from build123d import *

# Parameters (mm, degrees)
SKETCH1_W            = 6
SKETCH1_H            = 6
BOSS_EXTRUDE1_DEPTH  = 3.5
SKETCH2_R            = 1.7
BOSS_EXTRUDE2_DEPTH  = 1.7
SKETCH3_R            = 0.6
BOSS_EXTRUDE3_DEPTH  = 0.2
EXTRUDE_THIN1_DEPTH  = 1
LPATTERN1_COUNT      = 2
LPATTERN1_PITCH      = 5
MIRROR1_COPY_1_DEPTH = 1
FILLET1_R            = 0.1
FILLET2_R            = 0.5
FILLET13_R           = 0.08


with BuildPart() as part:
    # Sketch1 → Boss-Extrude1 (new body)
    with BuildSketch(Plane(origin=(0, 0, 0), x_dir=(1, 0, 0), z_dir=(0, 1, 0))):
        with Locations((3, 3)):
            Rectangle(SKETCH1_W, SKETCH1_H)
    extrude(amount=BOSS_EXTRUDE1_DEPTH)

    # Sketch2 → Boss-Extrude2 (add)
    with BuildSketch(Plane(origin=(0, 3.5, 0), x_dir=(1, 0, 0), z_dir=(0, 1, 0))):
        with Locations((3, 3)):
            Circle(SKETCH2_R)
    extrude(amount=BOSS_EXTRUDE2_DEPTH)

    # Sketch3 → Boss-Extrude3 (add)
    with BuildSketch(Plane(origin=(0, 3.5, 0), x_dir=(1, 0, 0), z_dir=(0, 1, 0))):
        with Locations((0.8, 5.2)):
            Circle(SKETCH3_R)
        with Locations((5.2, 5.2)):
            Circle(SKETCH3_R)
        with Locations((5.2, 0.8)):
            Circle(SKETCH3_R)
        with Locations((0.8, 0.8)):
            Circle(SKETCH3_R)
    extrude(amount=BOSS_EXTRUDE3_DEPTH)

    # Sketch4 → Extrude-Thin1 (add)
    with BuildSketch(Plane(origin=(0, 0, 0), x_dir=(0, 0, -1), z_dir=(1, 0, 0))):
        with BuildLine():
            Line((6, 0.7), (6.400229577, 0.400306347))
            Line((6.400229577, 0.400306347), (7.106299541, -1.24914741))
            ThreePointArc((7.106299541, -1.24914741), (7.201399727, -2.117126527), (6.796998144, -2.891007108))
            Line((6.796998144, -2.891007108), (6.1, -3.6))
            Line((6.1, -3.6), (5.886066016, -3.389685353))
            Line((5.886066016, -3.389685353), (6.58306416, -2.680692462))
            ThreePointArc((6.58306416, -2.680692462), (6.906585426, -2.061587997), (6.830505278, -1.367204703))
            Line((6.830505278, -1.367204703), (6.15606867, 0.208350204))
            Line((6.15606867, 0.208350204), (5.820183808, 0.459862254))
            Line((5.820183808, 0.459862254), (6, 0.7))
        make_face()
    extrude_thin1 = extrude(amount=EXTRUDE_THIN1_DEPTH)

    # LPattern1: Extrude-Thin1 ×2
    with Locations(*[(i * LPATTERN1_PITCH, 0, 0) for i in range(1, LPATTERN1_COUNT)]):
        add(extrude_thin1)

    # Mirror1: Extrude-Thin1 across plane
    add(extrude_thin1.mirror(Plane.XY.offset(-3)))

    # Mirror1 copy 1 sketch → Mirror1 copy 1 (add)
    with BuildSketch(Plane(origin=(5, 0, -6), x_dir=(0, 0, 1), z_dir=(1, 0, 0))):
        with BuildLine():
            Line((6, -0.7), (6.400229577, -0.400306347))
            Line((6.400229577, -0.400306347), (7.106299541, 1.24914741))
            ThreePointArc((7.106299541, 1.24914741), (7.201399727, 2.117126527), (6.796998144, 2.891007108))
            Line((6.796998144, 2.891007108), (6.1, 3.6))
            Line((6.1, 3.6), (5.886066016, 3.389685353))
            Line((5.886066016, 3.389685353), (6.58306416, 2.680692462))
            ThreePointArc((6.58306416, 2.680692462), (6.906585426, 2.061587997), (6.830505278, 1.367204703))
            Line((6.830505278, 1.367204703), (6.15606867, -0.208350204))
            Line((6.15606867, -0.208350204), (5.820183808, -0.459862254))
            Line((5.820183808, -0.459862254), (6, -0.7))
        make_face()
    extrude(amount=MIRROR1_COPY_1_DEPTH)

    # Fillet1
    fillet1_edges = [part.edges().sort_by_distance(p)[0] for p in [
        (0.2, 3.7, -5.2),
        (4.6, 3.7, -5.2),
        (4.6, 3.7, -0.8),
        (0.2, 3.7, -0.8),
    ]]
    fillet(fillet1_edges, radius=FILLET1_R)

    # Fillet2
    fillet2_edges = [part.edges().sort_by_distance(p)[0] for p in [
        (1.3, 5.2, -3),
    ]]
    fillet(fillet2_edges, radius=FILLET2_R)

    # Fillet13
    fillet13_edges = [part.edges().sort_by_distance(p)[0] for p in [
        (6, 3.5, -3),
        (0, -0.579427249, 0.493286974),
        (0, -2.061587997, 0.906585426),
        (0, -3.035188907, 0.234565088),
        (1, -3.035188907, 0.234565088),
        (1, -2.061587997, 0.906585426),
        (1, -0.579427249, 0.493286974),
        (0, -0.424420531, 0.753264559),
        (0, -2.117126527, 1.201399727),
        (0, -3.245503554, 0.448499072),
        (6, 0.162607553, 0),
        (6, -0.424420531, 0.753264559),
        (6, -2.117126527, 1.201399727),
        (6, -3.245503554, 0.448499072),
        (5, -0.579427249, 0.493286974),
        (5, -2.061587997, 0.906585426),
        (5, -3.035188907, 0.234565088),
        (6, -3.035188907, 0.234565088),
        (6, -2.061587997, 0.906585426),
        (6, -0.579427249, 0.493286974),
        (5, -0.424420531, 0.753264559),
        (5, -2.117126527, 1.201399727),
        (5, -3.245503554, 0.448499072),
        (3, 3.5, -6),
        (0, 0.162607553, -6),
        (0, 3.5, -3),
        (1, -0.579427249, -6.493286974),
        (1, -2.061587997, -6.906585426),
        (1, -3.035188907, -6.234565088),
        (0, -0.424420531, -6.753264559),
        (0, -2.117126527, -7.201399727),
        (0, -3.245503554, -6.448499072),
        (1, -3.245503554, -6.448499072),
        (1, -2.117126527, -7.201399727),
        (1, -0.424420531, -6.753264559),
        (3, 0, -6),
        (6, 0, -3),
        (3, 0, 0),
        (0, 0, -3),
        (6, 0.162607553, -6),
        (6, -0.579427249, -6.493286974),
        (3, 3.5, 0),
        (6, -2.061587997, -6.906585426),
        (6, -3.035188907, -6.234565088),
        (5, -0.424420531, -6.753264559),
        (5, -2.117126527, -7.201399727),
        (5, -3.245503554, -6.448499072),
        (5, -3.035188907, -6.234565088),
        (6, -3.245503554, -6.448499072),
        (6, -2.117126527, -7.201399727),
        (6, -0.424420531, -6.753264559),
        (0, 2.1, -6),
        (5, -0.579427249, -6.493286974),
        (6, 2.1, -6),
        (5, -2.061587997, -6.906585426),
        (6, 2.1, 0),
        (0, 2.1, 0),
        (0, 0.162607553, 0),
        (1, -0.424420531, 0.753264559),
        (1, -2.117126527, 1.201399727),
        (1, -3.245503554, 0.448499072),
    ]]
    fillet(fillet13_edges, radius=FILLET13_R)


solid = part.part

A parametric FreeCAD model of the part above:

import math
import FreeCAD as App
import Part
import Sketcher
from FreeCAD import Vector


def edges_at(feature, points):
    """Names of the edges that pass closest to the given points."""
    edges = feature.Shape.Edges
    near = lambda p: min(range(len(edges)), key=lambda i: edges[i].distToShape(Part.Vertex(*p))[0])
    return sorted({f"Edge{near(p) + 1}" for p in points})

doc = App.newDocument("Part")
body = doc.addObject("PartDesign::Body", "Body")

# Sketch on XZ plane
sketch1 = body.newObject("Sketcher::SketchObject", "Sketch")
sketch1.AttachmentSupport = (doc.getObject("XZ_Plane"), [""])
sketch1.MapMode = "FlatFace"
sketch1.addGeometry([
    Part.LineSegment(Vector(0, -6, 0), Vector(0, 0, 0)),
    Part.LineSegment(Vector(0, 0, 0), Vector(6, 0, 0)),
    Part.LineSegment(Vector(6, 0, 0), Vector(6, -6, 0)),
    Part.LineSegment(Vector(6, -6, 0), Vector(0, -6, 0)),
], False)
sketch1.addConstraint([
    Sketcher.Constraint("Coincident", 0, 2, 1, 1),
    Sketcher.Constraint("Coincident", 1, 2, 2, 1),
    Sketcher.Constraint("Coincident", 2, 2, 3, 1),
    Sketcher.Constraint("Coincident", 3, 2, 0, 1),
    Sketcher.Constraint("Vertical", 0),
    Sketcher.Constraint("Horizontal", 1),
    Sketcher.Constraint("Vertical", 2),
    Sketcher.Constraint("Horizontal", 3),
    Sketcher.Constraint("Coincident", 0, 2, -1, 1),
    Sketcher.Constraint("Equal", 3, 0),
    Sketcher.Constraint("DistanceX", 1, 1, 1, 2, 6.0),
])
pad1 = body.newObject("PartDesign::Pad", "Pad")
pad1.Profile = sketch1
pad1.Length = 3.5
pad1.Reversed = True

# Sketch on XZ plane
sketch2 = body.newObject("Sketcher::SketchObject", "Sketch001")
sketch2.AttachmentSupport = (doc.getObject("XZ_Plane"), [""])
sketch2.MapMode = "FlatFace"
sketch2.AttachmentOffset = App.Placement(Vector(0, 0, -3.5), App.Rotation())
sketch2.addGeometry(Part.Circle(Vector(3, -3, 0), Vector(0, 0, 1), 1.7), False)
sketch2.addConstraint([
    Sketcher.Constraint("Diameter", 0, 3.4),
    Sketcher.Constraint("DistanceX", -1, 1, 0, 3, 3.0),
    Sketcher.Constraint("DistanceY", 0, 3, -1, 1, 3.0),
])
pad2 = body.newObject("PartDesign::Pad", "Pad001")
pad2.Profile = sketch2
pad2.Length = 1.7
pad2.Reversed = True

# Sketch on XZ plane
sketch3 = body.newObject("Sketcher::SketchObject", "Sketch002")
sketch3.AttachmentSupport = (doc.getObject("XZ_Plane"), [""])
sketch3.MapMode = "FlatFace"
sketch3.AttachmentOffset = App.Placement(Vector(0, 0, -3.5), App.Rotation())
sketch3.addGeometry([
    Part.Circle(Vector(0.8, -5.2, 0), Vector(0, 0, 1), 0.6),
    Part.Circle(Vector(5.2, -5.2, 0), Vector(0, 0, 1), 0.6),
    Part.Circle(Vector(5.2, -0.8, 0), Vector(0, 0, 1), 0.6),
    Part.Circle(Vector(0.8, -0.8, 0), Vector(0, 0, 1), 0.6),
], False)
sketch3.addConstraint([
    Sketcher.Constraint("Equal", 0, 1),
    Sketcher.Constraint("Equal", 1, 2),
    Sketcher.Constraint("Equal", 2, 3),
    Sketcher.Constraint("Horizontal", 0, 3, 1, 3),
    Sketcher.Constraint("Horizontal", 2, 3, 3, 3),
    Sketcher.Constraint("Vertical", 1, 3, 2, 3),
    Sketcher.Constraint("Vertical", 0, 3, 3, 3),
    Sketcher.Constraint("Diameter", 0, 1.2),
    Sketcher.Constraint("DistanceX", -1, 1, 0, 3, 0.8),
    Sketcher.Constraint("DistanceY", 0, 3, -1, 1, 5.2),
    Sketcher.Constraint("DistanceX", -1, 1, 1, 3, 5.2),
    Sketcher.Constraint("DistanceY", 2, 3, -1, 1, 0.8),
])
pad3 = body.newObject("PartDesign::Pad", "Pad002")
pad3.Profile = sketch3
pad3.Length = 0.2
pad3.Reversed = True

# Sketch on YZ plane
sketch4 = body.newObject("Sketcher::SketchObject", "Sketch003")
sketch4.AttachmentSupport = (doc.getObject("YZ_Plane"), [""])
sketch4.MapMode = "FlatFace"
sketch4.addGeometry([
    Part.LineSegment(Vector(0.4, -6.4, 0), Vector(0.7, -6, 0)),  # 0
    Part.LineSegment(Vector(0.7, -6, 0), Vector(0.46, -5.82, 0)),  # 1
    Part.LineSegment(Vector(0.46, -5.82, 0), Vector(0.21, -6.16, 0)),  # 2
    Part.LineSegment(Vector(0.21, -6.16, 0), Vector(-1.37, -6.83, 0)),  # 3
    Part.ArcOfCircle(Part.Circle(Vector(-1.84, -5.73, 0), Vector(0, 0, 1), 1.2), math.radians(-135), math.radians(-67)),  # 4
    Part.LineSegment(Vector(-2.68, -6.58, 0), Vector(-3.39, -5.89, 0)),  # 5
    Part.LineSegment(Vector(-3.39, -5.89, 0), Vector(-3.6, -6.1, 0)),  # 6
    Part.LineSegment(Vector(-3.6, -6.1, 0), Vector(-2.89, -6.8, 0)),  # 7
    Part.ArcOfCircle(Part.Circle(Vector(-1.84, -5.73, 0), Vector(0, 0, 1), 1.5), math.radians(-135), math.radians(-67)),  # 8
    Part.LineSegment(Vector(-1.25, -7.11, 0), Vector(0.4, -6.4, 0)),  # 9
], False)
sketch4.addConstraint([
    Sketcher.Constraint("Coincident", 0, 2, 1, 1),
    Sketcher.Constraint("Coincident", 1, 2, 2, 1),
    Sketcher.Constraint("Coincident", 2, 2, 3, 1),
    Sketcher.Constraint("Tangent", 3, 2, 4, 2),
    Sketcher.Constraint("Tangent", 4, 1, 5, 1),
    Sketcher.Constraint("Coincident", 5, 2, 6, 1),
    Sketcher.Constraint("Coincident", 6, 2, 7, 1),
    Sketcher.Constraint("Tangent", 7, 2, 8, 1),
    Sketcher.Constraint("Tangent", 8, 2, 9, 1),
    Sketcher.Constraint("Coincident", 9, 2, 0, 1),
    Sketcher.Constraint("Coincident", 8, 3, 4, 3),
    Sketcher.Constraint("Perpendicular", 0, 1),
    Sketcher.Constraint("Perpendicular", 1, 2),
    Sketcher.Constraint("Perpendicular", 5, 6),
    Sketcher.Constraint("Perpendicular", 6, 7),
    Sketcher.Constraint("Parallel", 3, 9),
    Sketcher.Constraint("Equal", 1, 6),
    Sketcher.Constraint("Radius", 4, 1.2),
    Sketcher.Constraint("Radius", 8, 1.5),
    Sketcher.Constraint("DistanceY", 0, 2, -1, 1, 6.0),
    Sketcher.Constraint("Distance", 0, 0.5),
    Sketcher.Constraint("DistanceX", -1, 1, 0, 2, 0.7),
    Sketcher.Constraint("DistanceX", 6, 2, -1, 1, 3.6),
    Sketcher.Constraint("DistanceY", 6, 2, -1, 1, 6.1),
    Sketcher.Constraint("DistanceY", 7, 2, -1, 1, 6.796998),
    Sketcher.Constraint("DistanceY", 8, 2, -1, 1, 7.1063),
    Sketcher.Constraint("Distance", 5, 0.994222),
])
pad4 = body.newObject("PartDesign::Pad", "Pad003")
pad4.Profile = sketch4
pad4.Length = 1
doc.recompute()

linearpattern = body.newObject("PartDesign::LinearPattern", "LinearPattern")
linearpattern.Originals = [pad4]
linearpattern.Direction = (doc.getObject("X_Axis"), [""])
linearpattern.Mode = "offset"
linearpattern.Offset = 5
linearpattern.Occurrences = 2
body.Tip = linearpattern
doc.recompute()

datumplane = body.newObject("PartDesign::Plane", "DatumPlane")
datumplane.AttachmentSupport = (doc.getObject("XY_Plane"), [""])
datumplane.MapMode = "FlatFace"
datumplane.AttachmentOffset = App.Placement(Vector(0, 0, -3), App.Rotation())
mirrored = body.newObject("PartDesign::Mirrored", "Mirrored")
mirrored.Originals = [pad4]
mirrored.MirrorPlane = (datumplane, [""])
body.Tip = mirrored

# Sketch on YZ plane
sketch5 = body.newObject("Sketcher::SketchObject", "Sketch004")
sketch5.AttachmentSupport = (doc.getObject("YZ_Plane"), [""])
sketch5.MapMode = "FlatFace"
sketch5.AttachmentOffset = App.Placement(Vector(0, 0, 5), App.Rotation())
sketch5.addGeometry([
    Part.LineSegment(Vector(0.7, 0, 0), Vector(0.4, 0.4, 0)),  # 0
    Part.LineSegment(Vector(0.4, 0.4, 0), Vector(-1.25, 1.11, 0)),  # 1
    Part.ArcOfCircle(Part.Circle(Vector(-1.84, -0.27, 0), Vector(0, 0, 1), 1.5), math.radians(67), math.radians(135)),  # 2
    Part.LineSegment(Vector(-2.89, 0.8, 0), Vector(-3.6, 0.1, 0)),  # 3
    Part.LineSegment(Vector(-3.6, 0.1, 0), Vector(-3.39, -0.11, 0)),  # 4
    Part.LineSegment(Vector(-3.39, -0.11, 0), Vector(-2.68, 0.58, 0)),  # 5
    Part.ArcOfCircle(Part.Circle(Vector(-1.84, -0.27, 0), Vector(0, 0, 1), 1.2), math.radians(67), math.radians(135)),  # 6
    Part.LineSegment(Vector(-1.37, 0.83, 0), Vector(0.21, 0.16, 0)),  # 7
    Part.LineSegment(Vector(0.21, 0.16, 0), Vector(0.46, -0.18, 0)),  # 8
    Part.LineSegment(Vector(0.46, -0.18, 0), Vector(0.7, 0, 0)),  # 9
], False)
sketch5.addConstraint([
    Sketcher.Constraint("Coincident", 0, 2, 1, 1),
    Sketcher.Constraint("Tangent", 1, 2, 2, 1),
    Sketcher.Constraint("Tangent", 2, 2, 3, 1),
    Sketcher.Constraint("Coincident", 3, 2, 4, 1),
    Sketcher.Constraint("Coincident", 4, 2, 5, 1),
    Sketcher.Constraint("Tangent", 5, 2, 6, 2),
    Sketcher.Constraint("Tangent", 6, 1, 7, 1),
    Sketcher.Constraint("Coincident", 7, 2, 8, 1),
    Sketcher.Constraint("Coincident", 8, 2, 9, 1),
    Sketcher.Constraint("Coincident", 9, 2, 0, 1),
    Sketcher.Constraint("Coincident", 6, 3, 2, 3),
    Sketcher.Constraint("PointOnObject", 9, 2, -1),
    Sketcher.Constraint("Perpendicular", 3, 4),
    Sketcher.Constraint("Perpendicular", 4, 5),
    Sketcher.Constraint("Parallel", 1, 7),
    Sketcher.Constraint("Parallel", 0, 8),
    Sketcher.Constraint("Perpendicular", 8, 9),
    Sketcher.Constraint("Equal", 4, 9),
    Sketcher.Constraint("Radius", 2, 1.5),
    Sketcher.Constraint("Radius", 6, 1.2),
    Sketcher.Constraint("Distance", 0, 0.5),
    Sketcher.Constraint("DistanceX", 3, 2, -1, 1, 3.6),
    Sketcher.Constraint("DistanceY", -1, 1, 3, 2, 0.1),
    Sketcher.Constraint("DistanceX", -1, 1, 9, 2, 0.7),
    Sketcher.Constraint("DistanceY", -1, 1, 2, 2, 0.796998),
    Sketcher.Constraint("DistanceY", -1, 1, 1, 2, 1.1063),
    Sketcher.Constraint("DistanceY", 2, 3, 0, 2, 0.672901),
])
pad5 = body.newObject("PartDesign::Pad", "Pad004")
pad5.Profile = sketch5
pad5.Length = 1
doc.recompute()

fillet = body.newObject("PartDesign::Fillet", "Fillet")
fillet.Base = (pad5, edges_at(pad5, [
    (0.2, 3.7, -5.2),
    (4.6, 3.7, -5.2),
    (4.6, 3.7, -0.8),
    (0.2, 3.7, -0.8),
]))
fillet.Radius = 0.1
doc.recompute()

fillet2 = body.newObject("PartDesign::Fillet", "Fillet001")
fillet2.Base = (fillet, edges_at(fillet, [(1.3, 5.2, -3)]))
fillet2.Radius = 0.5
doc.recompute()

fillet3 = body.newObject("PartDesign::Fillet", "Fillet002")
fillet3.Base = (fillet2, edges_at(fillet2, [
    (6, 3.5, -3),
    (0, -0.579, 0.493),
    (0, -2.062, 0.907),
    (0, -3.035, 0.235),
    (1, -3.035, 0.235),
    (1, -2.062, 0.907),
    (1, -0.579, 0.493),
    (0, -0.424, 0.753),
    (0, -2.117, 1.201),
    (0, -3.246, 0.448),
    (6, 0.163, 0),
    (6, -0.424, 0.753),
    (6, -2.117, 1.201),
    (6, -3.246, 0.448),
    (5, -0.579, 0.493),
    (5, -2.062, 0.907),
    (5, -3.035, 0.235),
    (6, -3.035, 0.235),
    (6, -2.062, 0.907),
    (6, -0.579, 0.493),
    (5, -0.424, 0.753),
    (5, -2.117, 1.201),
    (5, -3.246, 0.448),
    (3, 3.5, -6),
    (0, 0.163, -6),
    (0, 3.5, -3),
    (1, -0.579, -6.493),
    (1, -2.062, -6.907),
    (1, -3.035, -6.235),
    (0, -0.424, -6.753),
    (0, -2.117, -7.201),
    (0, -3.246, -6.448),
    (1, -3.246, -6.448),
    (1, -2.117, -7.201),
    (1, -0.424, -6.753),
    (3, 0, -6),
    (6, 0, -3),
    (3, 0, 0),
    (0, 0, -3),
    (6, 0.163, -6),
    (6, -0.579, -6.493),
    (3, 3.5, 0),
    (6, -2.062, -6.907),
    (6, -3.035, -6.235),
    (5, -0.424, -6.753),
    (5, -2.117, -7.201),
    (5, -3.246, -6.448),
    (5, -3.035, -6.235),
    (6, -3.246, -6.448),
    (6, -2.117, -7.201),
    (6, -0.424, -6.753),
    (0, 2.1, -6),
    (5, -0.579, -6.493),
    (6, 2.1, -6),
    (5, -2.062, -6.907),
    (6, 2.1, 0),
    (0, 2.1, 0),
    (0, 0.163, 0),
    (1, -0.424, 0.753),
    (1, -2.117, 1.201),
    (1, -3.246, 0.448),
]))
fillet3.Radius = 0.08

doc.recompute()
